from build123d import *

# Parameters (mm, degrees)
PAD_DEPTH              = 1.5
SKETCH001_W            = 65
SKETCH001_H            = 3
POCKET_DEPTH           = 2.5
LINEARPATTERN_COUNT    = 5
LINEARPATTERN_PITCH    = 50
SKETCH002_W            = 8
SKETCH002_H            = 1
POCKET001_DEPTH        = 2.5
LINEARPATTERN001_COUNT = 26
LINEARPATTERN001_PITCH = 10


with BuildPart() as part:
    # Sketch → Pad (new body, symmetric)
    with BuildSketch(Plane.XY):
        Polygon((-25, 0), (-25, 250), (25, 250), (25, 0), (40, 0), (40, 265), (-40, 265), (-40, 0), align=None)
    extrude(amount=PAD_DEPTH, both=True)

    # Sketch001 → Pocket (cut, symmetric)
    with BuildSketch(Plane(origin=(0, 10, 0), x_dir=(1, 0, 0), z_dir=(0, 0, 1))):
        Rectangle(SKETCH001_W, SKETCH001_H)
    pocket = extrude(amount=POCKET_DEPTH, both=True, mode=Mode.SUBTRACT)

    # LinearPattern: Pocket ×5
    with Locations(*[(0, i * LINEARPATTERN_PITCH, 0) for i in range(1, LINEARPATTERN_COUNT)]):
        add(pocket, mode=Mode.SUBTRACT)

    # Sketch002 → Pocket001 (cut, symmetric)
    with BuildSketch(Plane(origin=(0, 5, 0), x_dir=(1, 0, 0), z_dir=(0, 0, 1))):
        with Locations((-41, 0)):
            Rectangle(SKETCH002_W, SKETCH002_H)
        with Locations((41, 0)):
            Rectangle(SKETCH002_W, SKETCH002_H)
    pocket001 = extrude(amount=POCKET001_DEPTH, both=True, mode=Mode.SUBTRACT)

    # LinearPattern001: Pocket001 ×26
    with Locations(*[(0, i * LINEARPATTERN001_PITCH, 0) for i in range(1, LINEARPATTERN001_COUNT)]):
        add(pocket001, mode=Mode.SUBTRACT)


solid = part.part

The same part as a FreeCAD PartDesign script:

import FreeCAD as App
import Part
import Sketcher

V = App.Vector

doc = App.newDocument("Part")
body = doc.addObject("PartDesign::Body", "Body")

sketch1 = body.newObject("Sketcher::SketchObject", "Sketch")
sketch1.AttachmentSupport = (doc.getObject("XY_Plane"), [""])
sketch1.MapMode = "FlatFace"
sketch1.addGeometry(Part.LineSegment(V(-25, 0, 0), V(-25, 250, 0)), False)
sketch1.addGeometry(Part.LineSegment(V(-25, 250, 0), V(25, 250, 0)), False)
sketch1.addGeometry(Part.LineSegment(V(25, 250, 0), V(25, 0, 0)), False)
sketch1.addGeometry(Part.LineSegment(V(25, 0, 0), V(40, 0, 0)), False)
sketch1.addGeometry(Part.LineSegment(V(40, 0, 0), V(40, 265, 0)), False)
sketch1.addGeometry(Part.LineSegment(V(40, 265, 0), V(-40, 265, 0)), False)
sketch1.addGeometry(Part.LineSegment(V(-40, 265, 0), V(-40, 0, 0)), False)
sketch1.addGeometry(Part.LineSegment(V(-40, 0, 0), V(-25, 0, 0)), False)
sketch1.addConstraint(Sketcher.Constraint("Coincident", 0, 2, 1, 1))
sketch1.addConstraint(Sketcher.Constraint("Coincident", 1, 2, 2, 1))
sketch1.addConstraint(Sketcher.Constraint("Coincident", 2, 2, 3, 1))
sketch1.addConstraint(Sketcher.Constraint("Coincident", 3, 2, 4, 1))
sketch1.addConstraint(Sketcher.Constraint("Coincident", 4, 2, 5, 1))
sketch1.addConstraint(Sketcher.Constraint("Coincident", 5, 2, 6, 1))
sketch1.addConstraint(Sketcher.Constraint("Coincident", 6, 2, 7, 1))
sketch1.addConstraint(Sketcher.Constraint("Coincident", 7, 2, 0, 1))
sketch1.addConstraint(Sketcher.Constraint("Vertical", 0))
sketch1.addConstraint(Sketcher.Constraint("Horizontal", 1))
sketch1.addConstraint(Sketcher.Constraint("Vertical", 2))
sketch1.addConstraint(Sketcher.Constraint("Horizontal", 3))
sketch1.addConstraint(Sketcher.Constraint("Vertical", 4))
sketch1.addConstraint(Sketcher.Constraint("Horizontal", 5))
sketch1.addConstraint(Sketcher.Constraint("Vertical", 6))
sketch1.addConstraint(Sketcher.Constraint("Horizontal", 7))
sketch1.addConstraint(Sketcher.Constraint("Symmetric", 3, 2, 6, 2, -1, 1))
sketch1.addConstraint(Sketcher.Constraint("Symmetric", 2, 2, 7, 2, -2))
sketch1.addConstraint(Sketcher.Constraint("DistanceX", 1, 1, 1, 2, 50.0))
sketch1.addConstraint(Sketcher.Constraint("DistanceX", 3, 1, 3, 2, 15.0))
sketch1.addConstraint(Sketcher.Constraint("DistanceY", 0, 1, 0, 2, 250.0))
sketch1.addConstraint(Sketcher.Constraint("DistanceY", 4, 1, 4, 2, 265.0))
pad1 = body.newObject("PartDesign::Pad", "Pad")
pad1.Profile = sketch1
pad1.Length = 3
pad1.Midplane = True

sketch2 = body.newObject("Sketcher::SketchObject", "Sketch001")
sketch2.AttachmentSupport = (doc.getObject("XY_Plane"), [""])
sketch2.MapMode = "FlatFace"
sketch2.addGeometry(Part.LineSegment(V(-32.5, 11.5, 0), V(-32.5, 8.5, 0)), False)
sketch2.addGeometry(Part.LineSegment(V(-32.5, 8.5, 0), V(32.5, 8.5, 0)), False)
sketch2.addGeometry(Part.LineSegment(V(32.5, 8.5, 0), V(32.5, 11.5, 0)), False)
sketch2.addGeometry(Part.LineSegment(V(32.5, 11.5, 0), V(-32.5, 11.5, 0)), False)
sketch2.addConstraint(Sketcher.Constraint("Coincident", 0, 2, 1, 1))
sketch2.addConstraint(Sketcher.Constraint("Coincident", 1, 2, 2, 1))
sketch2.addConstraint(Sketcher.Constraint("Coincident", 2, 2, 3, 1))
sketch2.addConstraint(Sketcher.Constraint("Coincident", 3, 2, 0, 1))
sketch2.addConstraint(Sketcher.Constraint("Vertical", 0))
sketch2.addConstraint(Sketcher.Constraint("Horizontal", 1))
sketch2.addConstraint(Sketcher.Constraint("Vertical", 2))
sketch2.addConstraint(Sketcher.Constraint("Horizontal", 3))
sketch2.addConstraint(Sketcher.Constraint("DistanceX", 1, 1, 1, 2, 65.0))
sketch2.addConstraint(Sketcher.Constraint("DistanceY", 0, 2, 0, 1, 3.0))
sketch2.addConstraint(Sketcher.Constraint("DistanceX", 0, 2, -1, 1, 32.5))
sketch2.addConstraint(Sketcher.Constraint("DistanceY", -1, 1, 0, 2, 8.5))
pocket1 = body.newObject("PartDesign::Pocket", "Pocket")
pocket1.Profile = sketch2
pocket1.Length = 5
pocket1.Midplane = True
doc.recompute()

linearpattern = body.newObject("PartDesign::LinearPattern", "LinearPattern")
linearpattern.Originals = [pocket1]
linearpattern.Direction = (doc.getObject("Y_Axis"), [""])
linearpattern.Mode = "offset"
linearpattern.Offset = 50
linearpattern.Occurrences = 5
body.Tip = linearpattern

sketch3 = body.newObject("Sketcher::SketchObject", "Sketch002")
sketch3.AttachmentSupport = (doc.getObject("XY_Plane"), [""])
sketch3.MapMode = "FlatFace"
sketch3.addGeometry(Part.LineSegment(V(-45, 5.5, 0), V(-45, 4.5, 0)), False)
sketch3.addGeometry(Part.LineSegment(V(-45, 4.5, 0), V(-37, 4.5, 0)), False)
sketch3.addGeometry(Part.LineSegment(V(-37, 4.5, 0), V(-37, 5.5, 0)), False)
sketch3.addGeometry(Part.LineSegment(V(-37, 5.5, 0), V(-45, 5.5, 0)), False)
sketch3.addGeometry(Part.LineSegment(V(37, 5.5, 0), V(37, 4.5, 0)), False)
sketch3.addGeometry(Part.LineSegment(V(37, 4.5, 0), V(45, 4.5, 0)), False)
sketch3.addGeometry(Part.LineSegment(V(45, 4.5, 0), V(45, 5.5, 0)), False)
sketch3.addGeometry(Part.LineSegment(V(45, 5.5, 0), V(37, 5.5, 0)), False)
sketch3.addConstraint(Sketcher.Constraint("Coincident", 0, 2, 1, 1))
sketch3.addConstraint(Sketcher.Constraint("Coincident", 1, 2, 2, 1))
sketch3.addConstraint(Sketcher.Constraint("Coincident", 2, 2, 3, 1))
sketch3.addConstraint(Sketcher.Constraint("Coincident", 3, 2, 0, 1))
sketch3.addConstraint(Sketcher.Constraint("Coincident", 4, 2, 5, 1))
sketch3.addConstraint(Sketcher.Constraint("Coincident", 5, 2, 6, 1))
sketch3.addConstraint(Sketcher.Constraint("Coincident", 6, 2, 7, 1))
sketch3.addConstraint(Sketcher.Constraint("Coincident", 7, 2, 4, 1))
sketch3.addConstraint(Sketcher.Constraint("Vertical", 0))
sketch3.addConstraint(Sketcher.Constraint("Horizontal", 1))
sketch3.addConstraint(Sketcher.Constraint("Vertical", 2))
sketch3.addConstraint(Sketcher.Constraint("Horizontal", 3))
sketch3.addConstraint(Sketcher.Constraint("Vertical", 4))
sketch3.addConstraint(Sketcher.Constraint("Horizontal", 5))
sketch3.addConstraint(Sketcher.Constraint("Vertical", 6))
sketch3.addConstraint(Sketcher.Constraint("Horizontal", 7))
sketch3.addConstraint(Sketcher.Constraint("Symmetric", 1, 2, 4, 2, -2))
sketch3.addConstraint(Sketcher.Constraint("Symmetric", 3, 2, 6, 2, -2))
sketch3.addConstraint(Sketcher.Constraint("DistanceX", 1, 1, 1, 2, 8.0))
sketch3.addConstraint(Sketcher.Constraint("DistanceY", 0, 2, 0, 1, 1.0))
sketch3.addConstraint(Sketcher.Constraint("DistanceX", 0, 2, -1, 1, 45.0))
sketch3.addConstraint(Sketcher.Constraint("DistanceY", -1, 1, 0, 2, 4.5))
pocket2 = body.newObject("PartDesign::Pocket", "Pocket001")
pocket2.Profile = sketch3
pocket2.Length = 5
pocket2.Midplane = True
doc.recompute()

linearpattern2 = body.newObject("PartDesign::LinearPattern", "LinearPattern001")
linearpattern2.Originals = [pocket2]
linearpattern2.Direction = (doc.getObject("Y_Axis"), [""])
linearpattern2.Mode = "offset"
linearpattern2.Offset = 10
linearpattern2.Occurrences = 26
body.Tip = linearpattern2

doc.recompute()
